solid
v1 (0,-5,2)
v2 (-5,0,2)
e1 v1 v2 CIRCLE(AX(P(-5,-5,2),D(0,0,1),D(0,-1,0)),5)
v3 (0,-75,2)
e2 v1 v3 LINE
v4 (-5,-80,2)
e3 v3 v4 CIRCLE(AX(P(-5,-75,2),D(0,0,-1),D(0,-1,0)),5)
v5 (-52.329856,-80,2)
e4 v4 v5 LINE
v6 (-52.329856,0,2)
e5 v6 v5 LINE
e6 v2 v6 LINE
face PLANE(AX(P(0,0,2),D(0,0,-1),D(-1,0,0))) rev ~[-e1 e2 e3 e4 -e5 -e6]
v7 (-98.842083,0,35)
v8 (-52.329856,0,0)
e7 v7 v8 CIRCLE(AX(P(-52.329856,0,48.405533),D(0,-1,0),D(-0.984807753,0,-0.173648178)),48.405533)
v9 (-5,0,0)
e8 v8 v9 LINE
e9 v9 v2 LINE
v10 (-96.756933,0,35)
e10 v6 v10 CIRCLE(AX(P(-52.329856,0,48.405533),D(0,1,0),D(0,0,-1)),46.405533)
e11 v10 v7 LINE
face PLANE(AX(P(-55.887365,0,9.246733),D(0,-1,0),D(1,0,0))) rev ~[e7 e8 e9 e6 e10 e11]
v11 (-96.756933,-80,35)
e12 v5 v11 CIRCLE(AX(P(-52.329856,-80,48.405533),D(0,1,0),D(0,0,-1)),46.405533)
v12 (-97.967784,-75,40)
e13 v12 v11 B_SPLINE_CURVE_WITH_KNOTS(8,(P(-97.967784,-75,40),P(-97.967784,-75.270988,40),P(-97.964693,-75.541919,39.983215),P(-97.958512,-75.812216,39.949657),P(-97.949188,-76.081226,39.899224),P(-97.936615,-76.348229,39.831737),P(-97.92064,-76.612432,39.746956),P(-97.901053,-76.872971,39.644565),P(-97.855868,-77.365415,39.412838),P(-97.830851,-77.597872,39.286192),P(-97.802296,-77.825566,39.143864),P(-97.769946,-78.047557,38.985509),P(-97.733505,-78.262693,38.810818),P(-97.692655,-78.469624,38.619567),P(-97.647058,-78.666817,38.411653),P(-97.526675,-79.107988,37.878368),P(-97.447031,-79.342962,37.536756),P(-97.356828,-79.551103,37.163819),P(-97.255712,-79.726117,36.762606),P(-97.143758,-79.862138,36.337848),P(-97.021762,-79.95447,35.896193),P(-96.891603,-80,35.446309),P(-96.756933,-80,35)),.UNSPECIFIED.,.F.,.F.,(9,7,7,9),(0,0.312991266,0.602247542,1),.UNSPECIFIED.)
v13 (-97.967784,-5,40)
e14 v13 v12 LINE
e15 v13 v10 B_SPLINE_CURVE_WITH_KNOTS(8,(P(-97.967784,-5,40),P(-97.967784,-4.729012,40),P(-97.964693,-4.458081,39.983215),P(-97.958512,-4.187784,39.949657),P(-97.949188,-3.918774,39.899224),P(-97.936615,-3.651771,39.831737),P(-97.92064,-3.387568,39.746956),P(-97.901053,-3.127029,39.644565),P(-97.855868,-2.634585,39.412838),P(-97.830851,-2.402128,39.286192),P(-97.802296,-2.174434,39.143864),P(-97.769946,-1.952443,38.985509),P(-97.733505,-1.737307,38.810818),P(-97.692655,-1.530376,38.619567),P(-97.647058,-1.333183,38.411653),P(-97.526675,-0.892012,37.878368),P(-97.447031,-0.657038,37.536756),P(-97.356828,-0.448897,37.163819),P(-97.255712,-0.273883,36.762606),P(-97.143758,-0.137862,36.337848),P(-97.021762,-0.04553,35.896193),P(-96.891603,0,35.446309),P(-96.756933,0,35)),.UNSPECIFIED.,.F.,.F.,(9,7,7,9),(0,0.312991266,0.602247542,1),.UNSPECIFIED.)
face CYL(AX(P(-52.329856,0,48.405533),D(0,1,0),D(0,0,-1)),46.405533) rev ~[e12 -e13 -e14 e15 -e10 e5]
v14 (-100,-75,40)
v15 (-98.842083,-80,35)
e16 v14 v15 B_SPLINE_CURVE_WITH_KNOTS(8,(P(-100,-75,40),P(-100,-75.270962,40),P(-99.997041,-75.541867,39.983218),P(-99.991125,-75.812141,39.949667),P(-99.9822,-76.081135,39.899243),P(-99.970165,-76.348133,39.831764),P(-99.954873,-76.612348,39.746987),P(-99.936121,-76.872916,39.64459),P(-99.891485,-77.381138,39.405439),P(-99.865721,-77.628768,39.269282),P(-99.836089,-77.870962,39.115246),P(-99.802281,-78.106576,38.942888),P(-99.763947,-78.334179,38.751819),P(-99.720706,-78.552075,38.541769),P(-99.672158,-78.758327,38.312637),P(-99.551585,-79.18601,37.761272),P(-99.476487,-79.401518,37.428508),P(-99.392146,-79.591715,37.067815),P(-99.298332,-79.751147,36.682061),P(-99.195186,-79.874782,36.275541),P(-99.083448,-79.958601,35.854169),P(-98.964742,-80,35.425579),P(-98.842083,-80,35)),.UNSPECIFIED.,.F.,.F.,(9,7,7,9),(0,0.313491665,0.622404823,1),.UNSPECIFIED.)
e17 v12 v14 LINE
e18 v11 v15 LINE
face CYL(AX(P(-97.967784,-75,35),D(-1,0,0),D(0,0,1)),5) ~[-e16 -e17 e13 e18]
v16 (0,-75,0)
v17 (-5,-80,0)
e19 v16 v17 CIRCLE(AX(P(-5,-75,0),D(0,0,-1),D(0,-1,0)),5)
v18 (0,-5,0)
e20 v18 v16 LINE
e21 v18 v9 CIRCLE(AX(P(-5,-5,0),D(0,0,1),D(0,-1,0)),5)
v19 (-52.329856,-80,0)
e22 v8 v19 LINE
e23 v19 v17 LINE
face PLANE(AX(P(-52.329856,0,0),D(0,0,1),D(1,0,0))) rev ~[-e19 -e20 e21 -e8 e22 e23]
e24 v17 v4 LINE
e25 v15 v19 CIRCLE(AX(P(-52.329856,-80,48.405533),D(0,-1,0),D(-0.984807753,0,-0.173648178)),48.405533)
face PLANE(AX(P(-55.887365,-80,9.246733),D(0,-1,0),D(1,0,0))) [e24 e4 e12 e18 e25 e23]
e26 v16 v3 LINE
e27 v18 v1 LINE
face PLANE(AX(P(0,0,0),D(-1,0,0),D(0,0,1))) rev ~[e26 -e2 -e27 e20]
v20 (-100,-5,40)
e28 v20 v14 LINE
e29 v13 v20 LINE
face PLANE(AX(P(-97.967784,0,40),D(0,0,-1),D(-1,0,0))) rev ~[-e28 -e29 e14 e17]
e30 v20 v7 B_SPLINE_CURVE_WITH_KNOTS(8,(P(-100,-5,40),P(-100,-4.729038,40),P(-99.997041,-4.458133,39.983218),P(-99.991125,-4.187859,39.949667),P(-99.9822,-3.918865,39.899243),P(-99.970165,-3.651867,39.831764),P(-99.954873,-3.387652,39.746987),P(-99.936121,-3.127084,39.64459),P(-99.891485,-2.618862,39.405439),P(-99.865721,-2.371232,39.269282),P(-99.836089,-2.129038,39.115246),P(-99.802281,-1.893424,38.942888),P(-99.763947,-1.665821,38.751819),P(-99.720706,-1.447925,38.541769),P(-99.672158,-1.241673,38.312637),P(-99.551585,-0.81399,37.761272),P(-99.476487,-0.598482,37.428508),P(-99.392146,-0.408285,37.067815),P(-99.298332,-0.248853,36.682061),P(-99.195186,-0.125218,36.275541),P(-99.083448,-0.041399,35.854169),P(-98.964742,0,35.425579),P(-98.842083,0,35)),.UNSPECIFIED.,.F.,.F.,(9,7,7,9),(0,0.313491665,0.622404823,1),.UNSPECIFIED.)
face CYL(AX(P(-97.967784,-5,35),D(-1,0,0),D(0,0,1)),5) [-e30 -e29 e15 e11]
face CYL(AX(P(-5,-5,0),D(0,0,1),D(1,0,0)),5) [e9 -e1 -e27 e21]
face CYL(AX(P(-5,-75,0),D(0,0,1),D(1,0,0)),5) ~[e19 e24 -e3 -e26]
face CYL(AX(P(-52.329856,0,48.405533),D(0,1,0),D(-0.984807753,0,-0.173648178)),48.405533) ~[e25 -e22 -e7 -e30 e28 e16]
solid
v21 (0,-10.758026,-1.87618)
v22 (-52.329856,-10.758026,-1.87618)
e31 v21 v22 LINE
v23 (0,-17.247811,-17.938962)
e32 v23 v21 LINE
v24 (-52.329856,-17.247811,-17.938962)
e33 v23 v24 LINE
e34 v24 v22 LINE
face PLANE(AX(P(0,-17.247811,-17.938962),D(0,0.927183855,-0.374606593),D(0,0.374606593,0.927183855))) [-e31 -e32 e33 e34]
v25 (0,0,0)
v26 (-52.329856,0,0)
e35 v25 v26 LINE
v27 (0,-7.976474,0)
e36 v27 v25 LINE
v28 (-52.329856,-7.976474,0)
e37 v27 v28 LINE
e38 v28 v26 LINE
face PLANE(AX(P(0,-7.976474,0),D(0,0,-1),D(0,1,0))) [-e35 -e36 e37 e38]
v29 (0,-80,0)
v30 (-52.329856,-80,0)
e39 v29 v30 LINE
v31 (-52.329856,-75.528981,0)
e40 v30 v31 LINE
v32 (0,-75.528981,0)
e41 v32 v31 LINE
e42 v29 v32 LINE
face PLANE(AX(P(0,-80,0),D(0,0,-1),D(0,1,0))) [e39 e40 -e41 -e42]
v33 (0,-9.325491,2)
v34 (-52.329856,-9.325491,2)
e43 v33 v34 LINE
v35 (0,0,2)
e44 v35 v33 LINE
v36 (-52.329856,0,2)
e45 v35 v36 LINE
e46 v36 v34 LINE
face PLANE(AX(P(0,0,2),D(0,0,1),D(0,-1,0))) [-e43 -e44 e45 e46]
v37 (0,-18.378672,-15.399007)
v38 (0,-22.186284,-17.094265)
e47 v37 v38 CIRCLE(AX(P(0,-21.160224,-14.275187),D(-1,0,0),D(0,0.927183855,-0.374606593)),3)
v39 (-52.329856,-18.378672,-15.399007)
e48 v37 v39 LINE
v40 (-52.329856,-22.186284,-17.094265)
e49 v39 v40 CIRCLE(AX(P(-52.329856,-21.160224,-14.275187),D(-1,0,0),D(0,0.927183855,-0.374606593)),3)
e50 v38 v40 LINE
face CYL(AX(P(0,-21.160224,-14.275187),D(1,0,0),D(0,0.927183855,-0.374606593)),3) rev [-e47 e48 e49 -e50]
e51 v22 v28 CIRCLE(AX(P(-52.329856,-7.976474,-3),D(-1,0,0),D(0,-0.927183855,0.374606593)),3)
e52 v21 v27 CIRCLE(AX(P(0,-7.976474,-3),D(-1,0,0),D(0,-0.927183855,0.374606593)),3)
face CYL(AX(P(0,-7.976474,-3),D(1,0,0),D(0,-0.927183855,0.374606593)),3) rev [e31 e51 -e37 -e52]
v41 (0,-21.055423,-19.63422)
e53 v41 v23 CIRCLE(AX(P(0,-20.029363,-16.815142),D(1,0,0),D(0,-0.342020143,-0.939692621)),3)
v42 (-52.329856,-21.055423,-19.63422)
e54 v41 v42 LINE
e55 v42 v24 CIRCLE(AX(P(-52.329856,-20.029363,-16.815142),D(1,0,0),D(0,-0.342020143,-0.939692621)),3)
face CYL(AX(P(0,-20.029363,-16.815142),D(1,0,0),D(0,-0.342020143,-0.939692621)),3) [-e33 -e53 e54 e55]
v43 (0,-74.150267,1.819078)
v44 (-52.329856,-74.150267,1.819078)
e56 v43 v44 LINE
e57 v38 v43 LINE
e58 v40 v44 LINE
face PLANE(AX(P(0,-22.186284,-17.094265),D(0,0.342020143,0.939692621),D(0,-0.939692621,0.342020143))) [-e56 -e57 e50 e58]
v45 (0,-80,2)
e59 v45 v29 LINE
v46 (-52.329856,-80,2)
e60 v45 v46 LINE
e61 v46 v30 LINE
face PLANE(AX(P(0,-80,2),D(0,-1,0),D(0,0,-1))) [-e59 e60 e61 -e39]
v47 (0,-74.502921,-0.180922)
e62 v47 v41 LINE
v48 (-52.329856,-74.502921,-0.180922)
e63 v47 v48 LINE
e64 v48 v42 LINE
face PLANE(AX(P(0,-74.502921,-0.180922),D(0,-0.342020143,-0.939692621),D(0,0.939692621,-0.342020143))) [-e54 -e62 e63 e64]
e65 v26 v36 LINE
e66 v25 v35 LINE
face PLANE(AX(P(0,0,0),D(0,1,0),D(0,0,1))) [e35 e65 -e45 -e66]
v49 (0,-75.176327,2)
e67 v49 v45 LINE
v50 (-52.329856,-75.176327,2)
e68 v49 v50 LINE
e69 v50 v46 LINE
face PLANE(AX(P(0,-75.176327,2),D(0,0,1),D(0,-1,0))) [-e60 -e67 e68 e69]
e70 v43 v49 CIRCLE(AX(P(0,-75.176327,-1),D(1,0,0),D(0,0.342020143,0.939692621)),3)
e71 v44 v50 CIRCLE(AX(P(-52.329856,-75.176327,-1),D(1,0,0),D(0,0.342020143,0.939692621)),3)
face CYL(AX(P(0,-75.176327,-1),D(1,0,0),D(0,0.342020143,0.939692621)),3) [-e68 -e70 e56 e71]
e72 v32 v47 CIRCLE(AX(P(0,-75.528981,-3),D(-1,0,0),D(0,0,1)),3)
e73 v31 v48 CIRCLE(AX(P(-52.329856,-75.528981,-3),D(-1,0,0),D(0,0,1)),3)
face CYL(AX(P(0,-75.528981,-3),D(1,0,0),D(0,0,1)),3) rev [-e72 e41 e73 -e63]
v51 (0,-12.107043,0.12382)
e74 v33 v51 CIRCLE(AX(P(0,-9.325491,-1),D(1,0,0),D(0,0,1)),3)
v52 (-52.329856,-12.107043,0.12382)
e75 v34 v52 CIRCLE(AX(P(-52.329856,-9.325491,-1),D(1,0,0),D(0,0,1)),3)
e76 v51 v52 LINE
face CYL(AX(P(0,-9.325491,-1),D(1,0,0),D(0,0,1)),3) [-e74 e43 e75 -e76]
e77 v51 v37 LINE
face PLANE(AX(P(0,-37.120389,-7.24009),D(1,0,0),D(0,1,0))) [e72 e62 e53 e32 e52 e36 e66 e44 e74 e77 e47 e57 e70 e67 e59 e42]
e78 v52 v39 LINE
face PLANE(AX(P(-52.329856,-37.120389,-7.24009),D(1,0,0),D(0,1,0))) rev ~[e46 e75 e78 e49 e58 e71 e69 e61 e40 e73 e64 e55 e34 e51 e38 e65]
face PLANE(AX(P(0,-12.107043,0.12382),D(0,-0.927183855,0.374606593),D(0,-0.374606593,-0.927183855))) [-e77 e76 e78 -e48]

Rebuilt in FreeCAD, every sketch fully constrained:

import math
import FreeCAD as App
import Part
import Sketcher
from FreeCAD import Vector
Q = App.Units.Quantity


def edges_at(feature, points):
    """Names of the edges that pass closest to the given points."""
    edges = feature.Shape.Edges
    near = lambda p: min(range(len(edges)), key=lambda i: edges[i].distToShape(Part.Vertex(*p))[0])
    return sorted({f"Edge{near(p) + 1}" for p in points})

doc = App.newDocument("Part")
body = doc.addObject("PartDesign::Body", "Body")

# Sketch on XZ plane
sketch1 = body.newObject("Sketcher::SketchObject", "Sketch")
sketch1.AttachmentSupport = (doc.getObject("XZ_Plane"), [""])
sketch1.MapMode = "FlatFace"
sketch1.addGeometry(Part.LineSegment(Vector(-52.3, 0, 0), Vector(0, 0, 0)), False)
sketch1.addGeometry(Part.LineSegment(Vector(0, 0, 0), Vector(0, 2, 0)), False)
sketch1.addGeometry(Part.LineSegment(Vector(0, 2, 0), Vector(-52.3, 2, 0)), False)
sketch1.addGeometry(Part.ArcOfCircle(Part.Circle(Vector(-52.3, 48.4, 0), Vector(0, 0, 1), 46.4), math.radians(-170), math.radians(-90)), False)
sketch1.addGeometry(Part.LineSegment(Vector(-98, 40, 0), Vector(-100, 40, 0)), False)
sketch1.addGeometry(Part.ArcOfCircle(Part.Circle(Vector(-52.3, 48.4, 0), Vector(0, 0, 1), 48.4), math.radians(-170), math.radians(-90)), False)
sketch1.addConstraint(Sketcher.Constraint("Coincident", 0, 2, 1, 1))
sketch1.addConstraint(Sketcher.Constraint("Coincident", 1, 2, 2, 1))
sketch1.addConstraint(Sketcher.Constraint("Tangent", 2, 2, 3, 2))
sketch1.addConstraint(Sketcher.Constraint("Coincident", 3, 1, 4, 1))
sketch1.addConstraint(Sketcher.Constraint("Coincident", 4, 2, 5, 1))
sketch1.addConstraint(Sketcher.Constraint("Tangent", 5, 2, 0, 1))
sketch1.addConstraint(Sketcher.Constraint("Horizontal", 0))
sketch1.addConstraint(Sketcher.Constraint("Vertical", 1))
sketch1.addConstraint(Sketcher.Constraint("Horizontal", 2))
sketch1.addConstraint(Sketcher.Constraint("Horizontal", 4))
sketch1.addConstraint(Sketcher.Constraint("Coincident", 0, 2, -1, 1))
sketch1.addConstraint(Sketcher.Constraint("Coincident", 5, 3, 3, 3))
sketch1.addConstraint(Sketcher.Constraint("DistanceY", 1, 1, 1, 2, 2.0))
sketch1.addConstraint(Sketcher.Constraint("DistanceY", -1, 1, 3, 1, 40.0))
sketch1.addConstraint(Sketcher.Constraint("DistanceX", 4, 2, -1, 1, 100.0))
sketch1.addConstraint(Sketcher.Constraint("Radius", 3, 46.405533))
pad1 = body.newObject("PartDesign::Pad", "Pad")
pad1.Profile = sketch1
pad1.Length = 80
doc.recompute()

fillet = body.newObject("PartDesign::Fillet", "Fillet")
fillet.Base = (pad1, edges_at(pad1, [
    (-98.984, -80, 40),
    (-98.984, 0, 40),
    (0, -80, 1),
    (0, 0, 1),
]))
fillet.Radius = 5
body2 = doc.addObject("PartDesign::Body", "Body001")

# Sketch on YZ plane
sketch2 = body2.newObject("Sketcher::SketchObject", "Sketch001")
sketch2.AttachmentSupport = (doc.getObject("YZ_Plane001"), [""])
sketch2.MapMode = "FlatFace"
sketch2.addGeometry(Part.ArcOfCircle(Part.Circle(Vector(-75.5, -3, 0), Vector(0, 0, 1), 3), math.radians(70), math.radians(90)), False)
sketch2.addGeometry(Part.LineSegment(Vector(-74.5, -0.2, 0), Vector(-21.1, -19.6, 0)), False)
sketch2.addGeometry(Part.ArcOfCircle(Part.Circle(Vector(-20, -16.8, 0), Vector(0, 0, 1), 3), math.radians(-110), math.radians(-22)), False)
sketch2.addGeometry(Part.LineSegment(Vector(-17.2, -17.9, 0), Vector(-10.8, -1.9, 0)), False)
sketch2.addGeometry(Part.ArcOfCircle(Part.Circle(Vector(-8, -3, 0), Vector(0, 0, 1), 3), math.radians(90), math.radians(158)), False)
sketch2.addGeometry(Part.LineSegment(Vector(-8, 0, 0), Vector(0, 0, 0)), False)
sketch2.addGeometry(Part.LineSegment(Vector(0, 0, 0), Vector(0, 2, 0)), False)
sketch2.addGeometry(Part.LineSegment(Vector(0, 2, 0), Vector(-9.3, 2, 0)), False)
sketch2.addGeometry(Part.ArcOfCircle(Part.Circle(Vector(-9.3, -1, 0), Vector(0, 0, 1), 3), math.radians(90), math.radians(158)), False)
sketch2.addGeometry(Part.LineSegment(Vector(-12.1, 0.1, 0), Vector(-18.4, -15.4, 0)), False)
sketch2.addGeometry(Part.ArcOfCircle(Part.Circle(Vector(-21.2, -14.3, 0), Vector(0, 0, 1), 3), math.radians(-110), math.radians(-22)), False)
sketch2.addGeometry(Part.LineSegment(Vector(-22.2, -17.1, 0), Vector(-74.2, 1.8, 0)), False)
sketch2.addGeometry(Part.ArcOfCircle(Part.Circle(Vector(-75.2, -1, 0), Vector(0, 0, 1), 3), math.radians(70), math.radians(90)), False)
sketch2.addGeometry(Part.LineSegment(Vector(-75.2, 2, 0), Vector(-80, 2, 0)), False)
sketch2.addGeometry(Part.LineSegment(Vector(-80, 2, 0), Vector(-80, 0, 0)), False)
sketch2.addGeometry(Part.LineSegment(Vector(-80, 0, 0), Vector(-75.5, 0, 0)), False)
sketch2.addConstraint(Sketcher.Constraint("Tangent", 0, 1, 1, 1))
sketch2.addConstraint(Sketcher.Constraint("Tangent", 1, 2, 2, 1))
sketch2.addConstraint(Sketcher.Constraint("Tangent", 2, 2, 3, 1))
sketch2.addConstraint(Sketcher.Constraint("Tangent", 3, 2, 4, 2))
sketch2.addConstraint(Sketcher.Constraint("Tangent", 4, 1, 5, 1))
sketch2.addConstraint(Sketcher.Constraint("Coincident", 5, 2, 6, 1))
sketch2.addConstraint(Sketcher.Constraint("Coincident", 6, 2, 7, 1))
sketch2.addConstraint(Sketcher.Constraint("Tangent", 7, 2, 8, 1))
sketch2.addConstraint(Sketcher.Constraint("Tangent", 8, 2, 9, 1))
sketch2.addConstraint(Sketcher.Constraint("Tangent", 9, 2, 10, 2))
sketch2.addConstraint(Sketcher.Constraint("Tangent", 10, 1, 11, 1))
sketch2.addConstraint(Sketcher.Constraint("Tangent", 11, 2, 12, 1))
sketch2.addConstraint(Sketcher.Constraint("Tangent", 12, 2, 13, 1))
sketch2.addConstraint(Sketcher.Constraint("Coincident", 13, 2, 14, 1))
sketch2.addConstraint(Sketcher.Constraint("Coincident", 14, 2, 15, 1))
sketch2.addConstraint(Sketcher.Constraint("Tangent", 15, 2, 0, 2))
sketch2.addConstraint(Sketcher.Constraint("Horizontal", 5))
sketch2.addConstraint(Sketcher.Constraint("Vertical", 6))
sketch2.addConstraint(Sketcher.Constraint("Horizontal", 7))
sketch2.addConstraint(Sketcher.Constraint("Horizontal", 13))
sketch2.addConstraint(Sketcher.Constraint("Vertical", 14))
sketch2.addConstraint(Sketcher.Constraint("Horizontal", 15))
sketch2.addConstraint(Sketcher.Constraint("Coincident", 5, 2, -1, 1))
sketch2.addConstraint(Sketcher.Constraint("Equal", 0, 2))
sketch2.addConstraint(Sketcher.Constraint("Equal", 2, 4))
sketch2.addConstraint(Sketcher.Constraint("Equal", 4, 8))
sketch2.addConstraint(Sketcher.Constraint("Equal", 8, 10))
sketch2.addConstraint(Sketcher.Constraint("Equal", 10, 12))
sketch2.addConstraint(Sketcher.Constraint("PointOnObject", 14, 2, -1))
sketch2.addConstraint(Sketcher.Constraint("Parallel", 3, 9))
sketch2.addConstraint(Sketcher.Constraint("Parallel", 1, 11))
sketch2.addConstraint(Sketcher.Constraint("Horizontal", 8, 3, 12, 3))
sketch2.addConstraint(Sketcher.Constraint("Radius", 0, 3.0))
sketch2.addConstraint(Sketcher.Constraint("DistanceY", 6, 1, 6, 2, 2.0))
sketch2.addConstraint(Sketcher.Constraint("Angle", 1, Q("-20 deg")))
sketch2.addConstraint(Sketcher.Constraint("Angle", 3, Q("68 deg")))
sketch2.addConstraint(Sketcher.Constraint("DistanceX", 13, 2, -1, 1, 80.0))
sketch2.addConstraint(Sketcher.Constraint("DistanceX", 7, 2, 7, 1, 9.325491))
sketch2.addConstraint(Sketcher.Constraint("DistanceX", 15, 1, 15, 2, 4.471019))
sketch2.addConstraint(Sketcher.Constraint("DistanceX", 10, 3, 1, 2, 0.104801))
sketch2.addConstraint(Sketcher.Constraint("DistanceY", 1, 2, 0, 1, 19.453298))
pad2 = body2.newObject("PartDesign::Pad", "Pad001")
pad2.Profile = sketch2
pad2.Length = 52.329856
pad2.Reversed = True

doc.recompute()
